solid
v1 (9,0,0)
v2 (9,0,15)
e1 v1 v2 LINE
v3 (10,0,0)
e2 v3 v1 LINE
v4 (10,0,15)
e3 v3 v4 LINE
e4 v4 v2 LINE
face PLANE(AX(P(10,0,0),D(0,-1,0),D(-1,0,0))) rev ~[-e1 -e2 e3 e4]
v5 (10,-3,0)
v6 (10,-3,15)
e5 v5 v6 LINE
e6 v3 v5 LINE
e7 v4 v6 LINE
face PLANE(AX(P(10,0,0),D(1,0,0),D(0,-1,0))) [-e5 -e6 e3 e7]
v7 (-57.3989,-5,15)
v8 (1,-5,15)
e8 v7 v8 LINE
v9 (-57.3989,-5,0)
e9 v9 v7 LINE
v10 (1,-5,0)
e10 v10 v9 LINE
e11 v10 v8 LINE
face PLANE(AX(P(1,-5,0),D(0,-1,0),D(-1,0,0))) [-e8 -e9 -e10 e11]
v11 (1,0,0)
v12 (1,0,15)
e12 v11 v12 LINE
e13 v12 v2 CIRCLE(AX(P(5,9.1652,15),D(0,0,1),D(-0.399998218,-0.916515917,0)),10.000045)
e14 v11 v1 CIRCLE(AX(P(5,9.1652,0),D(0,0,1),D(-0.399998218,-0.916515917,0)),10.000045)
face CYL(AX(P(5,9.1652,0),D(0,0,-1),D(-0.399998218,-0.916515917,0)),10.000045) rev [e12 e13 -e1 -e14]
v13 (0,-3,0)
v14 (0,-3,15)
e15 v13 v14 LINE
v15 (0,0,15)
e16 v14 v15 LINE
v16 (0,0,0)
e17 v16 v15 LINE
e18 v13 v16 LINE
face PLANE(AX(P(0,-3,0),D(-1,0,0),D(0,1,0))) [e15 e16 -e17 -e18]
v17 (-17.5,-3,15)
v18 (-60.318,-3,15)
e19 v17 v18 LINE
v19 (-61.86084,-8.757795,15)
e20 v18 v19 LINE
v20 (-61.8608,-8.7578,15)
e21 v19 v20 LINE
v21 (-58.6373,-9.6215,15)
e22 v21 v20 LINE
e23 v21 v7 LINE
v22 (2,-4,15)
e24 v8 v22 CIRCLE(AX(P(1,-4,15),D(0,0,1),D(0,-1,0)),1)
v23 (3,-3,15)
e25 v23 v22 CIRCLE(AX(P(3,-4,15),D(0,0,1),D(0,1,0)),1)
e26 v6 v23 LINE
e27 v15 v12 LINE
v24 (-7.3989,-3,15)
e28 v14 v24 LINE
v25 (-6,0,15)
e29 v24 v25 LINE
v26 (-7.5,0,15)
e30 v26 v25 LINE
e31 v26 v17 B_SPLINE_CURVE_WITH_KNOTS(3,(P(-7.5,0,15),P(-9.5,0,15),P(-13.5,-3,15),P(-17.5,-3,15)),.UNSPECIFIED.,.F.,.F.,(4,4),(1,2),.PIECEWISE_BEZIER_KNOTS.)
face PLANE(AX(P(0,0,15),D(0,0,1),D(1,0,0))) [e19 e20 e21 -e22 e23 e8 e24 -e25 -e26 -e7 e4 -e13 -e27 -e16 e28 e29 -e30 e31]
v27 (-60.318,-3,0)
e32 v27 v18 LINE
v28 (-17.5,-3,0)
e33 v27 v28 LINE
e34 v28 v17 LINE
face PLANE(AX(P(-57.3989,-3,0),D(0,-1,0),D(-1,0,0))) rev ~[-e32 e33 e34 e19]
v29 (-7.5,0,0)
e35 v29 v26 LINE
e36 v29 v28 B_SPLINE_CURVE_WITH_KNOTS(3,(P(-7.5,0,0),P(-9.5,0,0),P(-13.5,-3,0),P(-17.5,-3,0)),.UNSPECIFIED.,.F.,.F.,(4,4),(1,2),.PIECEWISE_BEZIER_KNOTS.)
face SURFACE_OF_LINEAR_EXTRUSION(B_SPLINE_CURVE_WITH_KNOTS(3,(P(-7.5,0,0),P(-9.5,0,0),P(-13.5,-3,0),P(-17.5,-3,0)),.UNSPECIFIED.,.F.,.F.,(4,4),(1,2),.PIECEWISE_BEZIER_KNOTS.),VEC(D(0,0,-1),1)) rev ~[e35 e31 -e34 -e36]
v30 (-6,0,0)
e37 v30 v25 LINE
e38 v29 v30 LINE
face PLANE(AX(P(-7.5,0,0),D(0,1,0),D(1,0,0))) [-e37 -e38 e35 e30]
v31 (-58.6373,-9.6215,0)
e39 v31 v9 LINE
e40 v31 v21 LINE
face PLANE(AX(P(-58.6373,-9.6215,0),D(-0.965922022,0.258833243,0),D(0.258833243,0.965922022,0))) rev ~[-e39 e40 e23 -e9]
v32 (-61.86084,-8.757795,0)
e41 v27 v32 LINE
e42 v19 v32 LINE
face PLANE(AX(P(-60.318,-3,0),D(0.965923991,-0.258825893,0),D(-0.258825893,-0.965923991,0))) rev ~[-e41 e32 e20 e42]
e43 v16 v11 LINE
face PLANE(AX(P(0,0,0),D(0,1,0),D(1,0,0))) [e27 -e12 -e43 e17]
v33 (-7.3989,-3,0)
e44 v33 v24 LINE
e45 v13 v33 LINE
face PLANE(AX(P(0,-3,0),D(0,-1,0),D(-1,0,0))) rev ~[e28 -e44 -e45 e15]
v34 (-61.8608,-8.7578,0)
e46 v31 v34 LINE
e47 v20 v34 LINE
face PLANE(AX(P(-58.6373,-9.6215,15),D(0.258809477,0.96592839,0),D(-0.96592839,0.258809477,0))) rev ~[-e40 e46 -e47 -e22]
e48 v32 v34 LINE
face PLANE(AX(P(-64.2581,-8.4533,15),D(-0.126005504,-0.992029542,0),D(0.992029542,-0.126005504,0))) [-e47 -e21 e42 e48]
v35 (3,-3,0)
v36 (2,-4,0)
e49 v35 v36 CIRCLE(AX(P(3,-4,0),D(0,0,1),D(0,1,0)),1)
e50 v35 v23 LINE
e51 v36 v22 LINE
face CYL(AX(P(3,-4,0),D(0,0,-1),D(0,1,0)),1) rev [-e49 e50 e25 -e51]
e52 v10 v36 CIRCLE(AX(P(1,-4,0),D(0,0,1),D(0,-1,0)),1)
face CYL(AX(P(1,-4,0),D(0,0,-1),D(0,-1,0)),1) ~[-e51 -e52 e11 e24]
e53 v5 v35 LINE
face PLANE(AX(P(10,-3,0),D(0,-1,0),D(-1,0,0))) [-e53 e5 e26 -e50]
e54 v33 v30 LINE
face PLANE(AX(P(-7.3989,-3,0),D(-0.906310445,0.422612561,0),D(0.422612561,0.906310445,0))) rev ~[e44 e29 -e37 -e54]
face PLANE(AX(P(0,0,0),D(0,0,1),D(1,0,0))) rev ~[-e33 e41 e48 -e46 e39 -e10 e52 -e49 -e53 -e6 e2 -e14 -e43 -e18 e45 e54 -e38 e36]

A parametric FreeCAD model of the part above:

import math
import FreeCAD as App
import Part
import Sketcher
from FreeCAD import Vector
Q = App.Units.Quantity

doc = App.newDocument("Part")
body = doc.addObject("PartDesign::Body", "Body")

# Sketch on XY plane
sketch1 = body.newObject("Sketcher::SketchObject", "Sketch")
sketch1.AttachmentSupport = (doc.getObject("XY_Plane"), [""])
sketch1.MapMode = "FlatFace"
sketch1.addGeometry(Part.LineSegment(Vector(1, 0, 0), Vector(0, 0, 0)), False)
sketch1.addGeometry(Part.LineSegment(Vector(0, 0, 0), Vector(0, -3, 0)), False)
sketch1.addGeometry(Part.LineSegment(Vector(0, -3, 0), Vector(-7.3989, -3, 0)), False)
sketch1.addGeometry(Part.LineSegment(Vector(-7.3989, -3, 0), Vector(-6, 0, 0)), False)
sketch1.addGeometry(Part.LineSegment(Vector(-6, 0, 0), Vector(-7.5, 0, 0)), False)
sketch1.addGeometry(Part.BSplineCurve([Vector(-7.5, 0, 0), Vector(-9.5, 0, 0), Vector(-13.5, -3, 0), Vector(-17.5, -3, 0)], [4, 4], [1, 2], False, 3, [1, 1, 1, 1], False), False)
sketch1.addGeometry(Part.LineSegment(Vector(-17.5, -3, 0), Vector(-60.318, -3, 0)), False)
sketch1.addGeometry(Part.LineSegment(Vector(-60.318, -3, 0), Vector(-62.6373, -11.6555, 0)), False)
sketch1.addGeometry(Part.LineSegment(Vector(-62.6373, -11.6555, 0), Vector(-58.6373, -12.7273, 0)), False)
sketch1.addGeometry(Part.LineSegment(Vector(-58.6373, -12.7273, 0), Vector(4.3374, -29.6013, 0)), False)
sketch1.addGeometry(Part.LineSegment(Vector(4.3374, -29.6013, 0), Vector(5.1139, -26.7036, 0)), False)
sketch1.addGeometry(Part.LineSegment(Vector(5.1139, -26.7036, 0), Vector(-58.6373, -9.6215, 0)), False)
sketch1.addGeometry(Part.LineSegment(Vector(-58.6373, -9.6215, 0), Vector(-57.3989, -5, 0)), False)
sketch1.addGeometry(Part.LineSegment(Vector(-57.3989, -5, 0), Vector(1, -5, 0)), False)
sketch1.addGeometry(Part.ArcOfCircle(Part.Circle(Vector(1, -4, 0), Vector(0, 0, 1), 1), math.radians(-90), math.radians(0)), False)
sketch1.addGeometry(Part.ArcOfCircle(Part.Circle(Vector(3, -4, 0), Vector(0, 0, 1), 1), math.radians(90), math.radians(180)), False)
sketch1.addGeometry(Part.LineSegment(Vector(3, -3, 0), Vector(10, -3, 0)), False)
sketch1.addGeometry(Part.LineSegment(Vector(10, -3, 0), Vector(10, 0, 0)), False)
sketch1.addGeometry(Part.LineSegment(Vector(10, 0, 0), Vector(9, 0, 0)), False)
sketch1.addGeometry(Part.ArcOfCircle(Part.Circle(Vector(5, 9.1652, 0), Vector(0, 0, 1), 10.000045), math.radians(-113.578067), math.radians(-66.421933)), False)
sketch1.addConstraint(Sketcher.Constraint("Block", 5))
sketch1.addConstraint(Sketcher.Constraint("Coincident", 0, 2, 1, 1))
sketch1.addConstraint(Sketcher.Constraint("Coincident", 1, 2, 2, 1))
sketch1.addConstraint(Sketcher.Constraint("Coincident", 2, 2, 3, 1))
sketch1.addConstraint(Sketcher.Constraint("Coincident", 3, 2, 4, 1))
sketch1.addConstraint(Sketcher.Constraint("Coincident", 4, 2, 5, 1))
sketch1.addConstraint(Sketcher.Constraint("Coincident", 5, 2, 6, 1))
sketch1.addConstraint(Sketcher.Constraint("Coincident", 6, 2, 7, 1))
sketch1.addConstraint(Sketcher.Constraint("Coincident", 7, 2, 8, 1))
sketch1.addConstraint(Sketcher.Constraint("Coincident", 8, 2, 9, 1))
sketch1.addConstraint(Sketcher.Constraint("Coincident", 9, 2, 10, 1))
sketch1.addConstraint(Sketcher.Constraint("Coincident", 10, 2, 11, 1))
sketch1.addConstraint(Sketcher.Constraint("Coincident", 11, 2, 12, 1))
sketch1.addConstraint(Sketcher.Constraint("Coincident", 12, 2, 13, 1))
sketch1.addConstraint(Sketcher.Constraint("Coincident", 13, 2, 14, 1))
sketch1.addConstraint(Sketcher.Constraint("Coincident", 14, 2, 15, 2))
sketch1.addConstraint(Sketcher.Constraint("Coincident", 15, 1, 16, 1))
sketch1.addConstraint(Sketcher.Constraint("Coincident", 16, 2, 17, 1))
sketch1.addConstraint(Sketcher.Constraint("Coincident", 17, 2, 18, 1))
sketch1.addConstraint(Sketcher.Constraint("Coincident", 18, 2, 19, 2))
sketch1.addConstraint(Sketcher.Constraint("Coincident", 19, 1, 0, 1))
sketch1.addConstraint(Sketcher.Constraint("Horizontal", 0))
sketch1.addConstraint(Sketcher.Constraint("Vertical", 1))
sketch1.addConstraint(Sketcher.Constraint("Horizontal", 2))
sketch1.addConstraint(Sketcher.Constraint("Horizontal", 4))
sketch1.addConstraint(Sketcher.Constraint("Horizontal", 6))
sketch1.addConstraint(Sketcher.Constraint("Horizontal", 13))
sketch1.addConstraint(Sketcher.Constraint("Horizontal", 16))
sketch1.addConstraint(Sketcher.Constraint("Vertical", 17))
sketch1.addConstraint(Sketcher.Constraint("Horizontal", 18))
sketch1.addConstraint(Sketcher.Constraint("Coincident", 0, 2, -1, 1))
sketch1.addConstraint(Sketcher.Constraint("PointOnObject", 17, 2, -1))
sketch1.addConstraint(Sketcher.Constraint("Radius", 14, Q("1 mm")))
sketch1.addConstraint(Sketcher.Constraint("Radius", 15, Q("1 mm")))
sketch1.addConstraint(Sketcher.Constraint("Radius", 19, Q("10 mm")))
sketch1.addConstraint(Sketcher.Constraint("DistanceX", 0, 2, 0, 1, Q("1 mm")))
sketch1.addConstraint(Sketcher.Constraint("DistanceX", 18, 2, 18, 1, Q("1 mm")))
sketch1.addConstraint(Sketcher.Constraint("DistanceY", 1, 2, 1, 1, Q("3 mm")))
sketch1.addConstraint(Sketcher.Constraint("DistanceY", 17, 1, 17, 2, Q("3 mm")))
sketch1.addConstraint(Sketcher.Constraint("Distance", 10, Q("3 mm")))
sketch1.addConstraint(Sketcher.Constraint("Distance", 11, Q("66 mm")))
sketch1.addConstraint(Sketcher.Constraint("DistanceX", 4, 2, 4, 1, Q("1.5 mm")))
sketch1.addConstraint(Sketcher.Constraint("DistanceX", -1, 1, 14, 3, Q("1 mm")))
sketch1.addConstraint(Sketcher.Constraint("DistanceY", 14, 3, -1, 1, Q("4 mm")))
sketch1.addConstraint(Sketcher.Constraint("DistanceX", -1, 1, 13, 2, Q("1 mm")))
sketch1.addConstraint(Sketcher.Constraint("DistanceY", 14, 2, -1, 1, Q("4 mm")))
sketch1.addConstraint(Sketcher.Constraint("DistanceX", -1, 1, 15, 1, Q("3 mm")))
sketch1.addConstraint(Sketcher.Constraint("DistanceX", -1, 1, 16, 2, Q("10 mm")))
sketch1.addConstraint(Sketcher.Constraint("DistanceX", 7, 2, 8, 2, Q("4 mm")))
sketch1.addConstraint(Sketcher.Constraint("DistanceX", 7, 2, 11, 2, Q("4 mm")))
sketch1.addConstraint(Sketcher.Constraint("DistanceX", 12, 2, 2, 2, Q("50 mm")))
sketch1.addConstraint(Sketcher.Constraint("Distance", 9, Q("65.1962 mm")))
sketch1.addConstraint(Sketcher.Constraint("Distance", 12, Q("4.7845 mm")))
sketch1.addConstraint(Sketcher.Constraint("DistanceX", 2, 2, 2, 1, Q("7.399 mm")))
sketch1.addConstraint(Sketcher.Constraint("DistanceX", 6, 2, 6, 1, Q("42.818 mm")))
sketch1.addConstraint(Sketcher.Constraint("Distance", 8, Q("4.141 mm")))
sketch1.addConstraint(Sketcher.Constraint("DistanceX", -1, 1, 10, 2, Q("5.114 mm")))
sketch1.addConstraint(Sketcher.Constraint("DistanceY", 7, 2, 11, 2, Q("2.034 mm")))
sketch1.addConstraint(Sketcher.Constraint("DistanceX", 7, 2, -1, 1, Q("62.6373 mm")))
pad1 = body.newObject("PartDesign::Pad", "Pad")
pad1.Profile = sketch1
pad1.Length = 15

# Sketch on XY plane
sketch2 = body.newObject("Sketcher::SketchObject", "Sketch001")
sketch2.AttachmentSupport = (doc.getObject("XY_Plane"), [""])
sketch2.MapMode = "FlatFace"
sketch2.AttachmentOffset = App.Placement(Vector(0, 0, 15), App.Rotation())
sketch2.addGeometry(Part.LineSegment(Vector(9.5, -23.8, 0), Vector(-58.6, -9.6, 0)), False)
sketch2.addGeometry(Part.LineSegment(Vector(-58.6, -9.6, 0), Vector(-61.9, -8.8, 0)), False)
sketch2.addGeometry(Part.LineSegment(Vector(-61.9, -8.8, 0), Vector(-64.3, -8.5, 0)), False)
sketch2.addGeometry(Part.LineSegment(Vector(-64.3, -8.5, 0), Vector(-68, -14.7, 0)), False)
sketch2.addGeometry(Part.LineSegment(Vector(-68, -14.7, 0), Vector(5.9, -35, 0)), False)
sketch2.addGeometry(Part.LineSegment(Vector(5.9, -35, 0), Vector(9.5, -23.8, 0)), False)
sketch2.addConstraint(Sketcher.Constraint("Coincident", 0, 2, 1, 1))
sketch2.addConstraint(Sketcher.Constraint("Coincident", 1, 2, 2, 1))
sketch2.addConstraint(Sketcher.Constraint("Coincident", 2, 2, 3, 1))
sketch2.addConstraint(Sketcher.Constraint("Coincident", 3, 2, 4, 1))
sketch2.addConstraint(Sketcher.Constraint("Coincident", 4, 2, 5, 1))
sketch2.addConstraint(Sketcher.Constraint("Coincident", 5, 2, 0, 1))
sketch2.addConstraint(Sketcher.Constraint("Angle", 1, Q("165.0006 deg")))
sketch2.addConstraint(Sketcher.Constraint("DistanceX", -1, 1, 5, 2, Q("9.5 mm")))
sketch2.addConstraint(Sketcher.Constraint("Angle", 0, Q("168.2593 deg")))
sketch2.addConstraint(Sketcher.Constraint("Angle", 2, Q("172.7612 deg")))
sketch2.addConstraint(Sketcher.Constraint("Angle", 3, Q("-120.7205 deg")))
sketch2.addConstraint(Sketcher.Constraint("DistanceY", 4, 2, 0, 2, Q("25.4 mm")))
sketch2.addConstraint(Sketcher.Constraint("DistanceX", 2, 2, -1, 1, Q("64.258 mm")))
sketch2.addConstraint(Sketcher.Constraint("DistanceY", 3, 2, 2, 2, Q("6.234 mm")))
sketch2.addConstraint(Sketcher.Constraint("DistanceX", 1, 2, 4, 2, Q("67.797 mm")))
sketch2.addConstraint(Sketcher.Constraint("DistanceY", 4, 2, 2, 2, Q("26.568 mm")))
sketch2.addConstraint(Sketcher.Constraint("DistanceX", 3, 2, 4, 2, Q("73.899 mm")))
sketch2.addConstraint(Sketcher.Constraint("DistanceY", 0, 2, -1, 1, Q("9.6215 mm")))
pocket1 = body.newObject("PartDesign::Pocket", "Pocket")
pocket1.Profile = sketch2
pocket1.Length = 25

doc.recompute()
